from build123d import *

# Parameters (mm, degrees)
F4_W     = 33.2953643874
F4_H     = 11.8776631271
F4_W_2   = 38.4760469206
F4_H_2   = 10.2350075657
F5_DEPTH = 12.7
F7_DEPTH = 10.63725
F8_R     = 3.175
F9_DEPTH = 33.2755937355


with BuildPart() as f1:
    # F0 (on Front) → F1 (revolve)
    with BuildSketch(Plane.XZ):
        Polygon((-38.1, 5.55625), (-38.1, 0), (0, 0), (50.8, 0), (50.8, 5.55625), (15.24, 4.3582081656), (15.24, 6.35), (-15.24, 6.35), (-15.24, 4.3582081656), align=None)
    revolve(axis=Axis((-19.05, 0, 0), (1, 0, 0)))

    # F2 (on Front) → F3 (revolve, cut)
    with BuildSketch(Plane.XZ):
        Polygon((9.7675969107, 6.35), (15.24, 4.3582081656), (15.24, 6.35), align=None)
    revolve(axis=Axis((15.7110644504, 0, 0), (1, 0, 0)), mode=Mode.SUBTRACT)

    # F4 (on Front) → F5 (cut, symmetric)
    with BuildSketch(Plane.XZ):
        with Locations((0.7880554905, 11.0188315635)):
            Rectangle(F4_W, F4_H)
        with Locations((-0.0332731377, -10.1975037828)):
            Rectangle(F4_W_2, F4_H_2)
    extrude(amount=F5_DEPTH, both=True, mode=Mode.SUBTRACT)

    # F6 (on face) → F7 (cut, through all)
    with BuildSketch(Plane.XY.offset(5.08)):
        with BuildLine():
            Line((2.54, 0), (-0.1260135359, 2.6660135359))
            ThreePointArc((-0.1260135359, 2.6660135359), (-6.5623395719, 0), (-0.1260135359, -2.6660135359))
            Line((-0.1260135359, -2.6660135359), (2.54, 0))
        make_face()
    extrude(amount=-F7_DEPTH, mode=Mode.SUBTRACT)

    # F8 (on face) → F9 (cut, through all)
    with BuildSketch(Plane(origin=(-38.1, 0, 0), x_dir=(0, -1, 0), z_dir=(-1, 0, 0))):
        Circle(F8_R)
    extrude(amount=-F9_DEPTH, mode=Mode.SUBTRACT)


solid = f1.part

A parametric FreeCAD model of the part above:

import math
import FreeCAD as App
import Part
import Sketcher
Q = App.Units.Quantity


def add_polygon(sketch, points):
    """Adds a closed chain of lines whose ends are joined by coincident constraints."""
    first, n = sketch.GeometryCount, len(points)
    for a, b in zip(points, points[1:] + points[:1]):
        sketch.addGeometry(Part.LineSegment(App.Vector(*a, 0), App.Vector(*b, 0)), False)
    for i in range(n):
        sketch.addConstraint(Sketcher.Constraint("Coincident", first + i, 2, first + (i + 1) % n, 1))

doc = App.newDocument("Part")
body = doc.addObject("PartDesign::Body", "Body")

sketch1 = body.newObject("Sketcher::SketchObject", "Sketch")
sketch1.AttachmentSupport = (doc.getObject("XZ_Plane"), [""])
sketch1.MapMode = "FlatFace"
add_polygon(sketch1, [(-38.1, 5.6), (-38.1, 0), (50.8, 0), (50.8, 5.6), (15.2, 4.4), (15.2, 6.3), (-15.2, 6.3), (-15.2, 4.4)])
sketch1.addConstraint([
    Sketcher.Constraint("Vertical", 0),
    Sketcher.Constraint("Horizontal", 1),
    Sketcher.Constraint("Vertical", 2),
    Sketcher.Constraint("Vertical", 4),
    Sketcher.Constraint("Horizontal", 5),
    Sketcher.Constraint("Vertical", 6),
    Sketcher.Constraint("Symmetric", 3, 2, 6, 2, -2),
    Sketcher.Constraint("PointOnObject", 0, 2, -1),
    Sketcher.Constraint("Horizontal", 2, 2, 7, 2),
    Sketcher.Constraint("DistanceX", 1, 1, 1, 2, Q("3.5 in")),
    Sketcher.Constraint("DistanceX", 5, 2, 5, 1, Q("1.2 in")),
    Sketcher.Constraint("DistanceX", -1, 1, 1, 2, Q("2 in")),
    Sketcher.Constraint("Angle", 7, Q("177 deg")),
    Sketcher.Constraint("DistanceY", 0, 2, 0, 1, Q("0.21875 in")),
    Sketcher.Constraint("DistanceY", -1, 1, 4, 2, Q("0.25 in")),
])
revolution = body.newObject("PartDesign::Revolution", "Revolution")
revolution.Profile = sketch1
revolution.ReferenceAxis = (sketch1, ["H_Axis"])
revolution.Angle = 360

sketch2 = body.newObject("Sketcher::SketchObject", "Sketch001")
sketch2.AttachmentSupport = (doc.getObject("XZ_Plane"), [""])
sketch2.MapMode = "FlatFace"
add_polygon(sketch2, [(9.8, 6.3), (15.2, 4.4), (15.2, 6.3)])
sketch2.addConstraint([
    Sketcher.Constraint("Vertical", 1),
    Sketcher.Constraint("Horizontal", 2),
    Sketcher.Constraint("Angle", 0, Q("-20 deg")),
    Sketcher.Constraint("DistanceX", -1, 1, 0, 2, Q("0.6 in")),
    Sketcher.Constraint("DistanceY", -1, 1, 1, 2, Q("0.25 in")),
    Sketcher.Constraint("DistanceY", 1, 1, 1, 2, 1.991792),
])
groove = body.newObject("PartDesign::Groove", "Groove")
groove.Profile = sketch2
groove.ReferenceAxis = (sketch2, ["H_Axis"])
groove.Angle = 360

sketch3 = body.newObject("Sketcher::SketchObject", "Sketch002")
sketch3.AttachmentSupport = (doc.getObject("XZ_Plane"), [""])
sketch3.MapMode = "FlatFace"
add_polygon(sketch3, [(-16, 17), (-16, 5), (17, 5), (17, 17)])
add_polygon(sketch3, [(-19, -5), (-19, -15), (19, -15), (19, -5)])
sketch3.addConstraint([
    Sketcher.Constraint("Vertical", 0),
    Sketcher.Constraint("Horizontal", 1),
    Sketcher.Constraint("Vertical", 2),
    Sketcher.Constraint("Horizontal", 3),
    Sketcher.Constraint("Vertical", 4),
    Sketcher.Constraint("Horizontal", 5),
    Sketcher.Constraint("Vertical", 6),
    Sketcher.Constraint("Horizontal", 7),
    Sketcher.Constraint("DistanceY", -1, 1, 0, 2, Q("0.2 in")),
    Sketcher.Constraint("DistanceY", 6, 2, -1, 1, Q("0.2 in")),
    Sketcher.Constraint("DistanceX", 1, 1, 1, 2, 33.295364),
    Sketcher.Constraint("DistanceX", 5, 1, 5, 2, 38.476047),
    Sketcher.Constraint("DistanceY", 0, 2, 0, 1, 11.877663),
    Sketcher.Constraint("DistanceY", 4, 2, 4, 1, 10.235008),
    Sketcher.Constraint("DistanceX", -1, 1, 5, 2, 19.20475),
    Sketcher.Constraint("DistanceX", 4, 2, 0, 2, 3.41167),
])
pocket1 = body.newObject("PartDesign::Pocket", "Pocket")
pocket1.Profile = sketch3
pocket1.Length = Q("1 in")
pocket1.Midplane = True

sketch4 = body.newObject("Sketcher::SketchObject", "Sketch003")
sketch4.AttachmentSupport = (doc.getObject("XY_Plane"), [""])
sketch4.MapMode = "FlatFace"
sketch4.AttachmentOffset = App.Placement(App.Vector(0, 0, 0.2 * 25.4), App.Rotation())
sketch4.addGeometry([
    Part.LineSegment(App.Vector(2.5, 0, 0), App.Vector(-0.1, 2.7, 0)),
    Part.ArcOfCircle(Part.Circle(App.Vector(-2.8, 0, 0), App.Vector(0, 0, 1), 3.8), math.radians(45), math.radians(315)),
    Part.LineSegment(App.Vector(-0.1, -2.7, 0), App.Vector(2.5, 0, 0)),
], False)
sketch4.addConstraint([
    Sketcher.Constraint("Tangent", 0, 2, 1, 1),
    Sketcher.Constraint("Tangent", 1, 2, 2, 1),
    Sketcher.Constraint("Coincident", 2, 2, 0, 1),
    Sketcher.Constraint("Symmetric", 0, 2, 1, 2, -1),
    Sketcher.Constraint("Perpendicular", 0, 2),
    Sketcher.Constraint("DistanceX", -1, 1, 2, 2, Q("0.1 in")),
    Sketcher.Constraint("Radius", 1, 3.770313),
])
pocket2 = body.newObject("PartDesign::Pocket", "Pocket001")
pocket2.Profile = sketch4
pocket2.Type = "ThroughAll"

sketch5 = body.newObject("Sketcher::SketchObject", "Sketch004")
sketch5.AttachmentSupport = (doc.getObject("YZ_Plane"), [""])
sketch5.MapMode = "FlatFace"
sketch5.AttachmentOffset = App.Placement(App.Vector(0, 0, -1.5 * 25.4), App.Rotation())
sketch5.addGeometry(Part.Circle(App.Vector(0, 0, 0), App.Vector(0, 0, 1), 3.2), False)
sketch5.addConstraint([
    Sketcher.Constraint("Coincident", 0, 3, -1, 1),
    Sketcher.Constraint("Diameter", 0, Q("0.25 in")),
])
pocket3 = body.newObject("PartDesign::Pocket", "Pocket002")
pocket3.Profile = sketch5
pocket3.Length = 33.275594
pocket3.Reversed = True

doc.recompute()
